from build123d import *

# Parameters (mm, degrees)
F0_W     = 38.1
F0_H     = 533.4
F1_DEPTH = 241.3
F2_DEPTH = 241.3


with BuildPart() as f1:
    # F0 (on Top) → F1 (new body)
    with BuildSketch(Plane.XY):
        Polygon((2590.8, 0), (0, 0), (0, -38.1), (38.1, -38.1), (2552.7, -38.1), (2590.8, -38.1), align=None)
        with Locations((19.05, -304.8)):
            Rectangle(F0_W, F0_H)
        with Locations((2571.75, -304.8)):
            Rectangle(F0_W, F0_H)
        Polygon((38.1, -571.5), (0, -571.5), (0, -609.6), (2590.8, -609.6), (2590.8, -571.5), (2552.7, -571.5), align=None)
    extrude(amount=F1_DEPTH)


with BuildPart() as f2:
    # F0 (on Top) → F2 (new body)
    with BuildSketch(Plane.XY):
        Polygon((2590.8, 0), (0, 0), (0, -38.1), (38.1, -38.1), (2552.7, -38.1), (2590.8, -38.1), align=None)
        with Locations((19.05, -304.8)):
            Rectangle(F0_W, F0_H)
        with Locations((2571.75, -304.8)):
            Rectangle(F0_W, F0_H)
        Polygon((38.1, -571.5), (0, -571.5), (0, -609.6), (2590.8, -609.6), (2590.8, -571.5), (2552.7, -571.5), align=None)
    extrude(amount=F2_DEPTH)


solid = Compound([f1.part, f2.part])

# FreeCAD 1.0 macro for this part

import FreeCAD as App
import Part
import Sketcher

V = App.Vector
Q = App.Units.Quantity


def add_polygon(sketch, points):
    """Adds a closed chain of lines whose ends are joined by coincident constraints."""
    first, n = sketch.GeometryCount, len(points)
    for a, b in zip(points, points[1:] + points[:1]):
        sketch.addGeometry(Part.LineSegment(App.Vector(*a, 0), App.Vector(*b, 0)), False)
    for i in range(n):
        sketch.addConstraint(Sketcher.Constraint("Coincident", first + i, 2, first + (i + 1) % n, 1))

doc = App.newDocument("Part")
body = doc.addObject("PartDesign::Body", "Body")

# Sketch on XY plane
sketch1 = doc.addObject("Sketcher::SketchObject", "Sketch")
body.addObject(sketch1)
sketch1.AttachmentSupport = (doc.XY_Plane, [""])
sketch1.MapMode = "FlatFace"
add_polygon(sketch1, [(2590.8, 0), (0, 0), (0, -609.6), (2590.8, -609.6)])  # lines 0-3
add_polygon(sketch1, [(38.1, -571.5), (38.1, -38.1), (2552.7, -38.1), (2552.7, -571.5)])  # lines 4-7
sketch1.addConstraint([
    Sketcher.Constraint("Horizontal", 0),
    Sketcher.Constraint("Vertical", 1),
    Sketcher.Constraint("Horizontal", 2),
    Sketcher.Constraint("Vertical", 3),
    Sketcher.Constraint("Vertical", 4),
    Sketcher.Constraint("Horizontal", 5),
    Sketcher.Constraint("Vertical", 6),
    Sketcher.Constraint("Horizontal", 7),
    Sketcher.Constraint("Coincident", 0, 2, -1, 1),
    Sketcher.Constraint("DistanceX", 0, 2, 0, 1, Q("102 in")),
    Sketcher.Constraint("DistanceX", 5, 1, 5, 2, Q("99 in")),
    Sketcher.Constraint("DistanceY", 1, 2, 1, 1, Q("24 in")),
    Sketcher.Constraint("DistanceY", 4, 1, 4, 2, Q("21 in")),
    Sketcher.Constraint("DistanceX", -1, 1, 4, 2, Q("1.5 in")),
    Sketcher.Constraint("DistanceY", 4, 2, -1, 1, Q("1.5 in")),
])
pad1 = doc.addObject("PartDesign::Pad", "Pad")
body.addObject(pad1)
pad1.Profile = sketch1
pad1.Length = Q("9.5 in")
body2 = doc.addObject("PartDesign::Body", "Body001")

# Sketch on XY plane
sketch2 = doc.addObject("Sketcher::SketchObject", "Sketch001")
body2.addObject(sketch2)
sketch2.AttachmentSupport = (doc.getObject("XY_Plane001"), [""])
sketch2.MapMode = "FlatFace"
add_polygon(sketch2, [(2590.8, 0), (0, 0), (0, -609.6), (2590.8, -609.6)])  # lines 0-3
add_polygon(sketch2, [(38.1, -571.5), (38.1, -38.1), (2552.7, -38.1), (2552.7, -571.5)])  # lines 4-7
sketch2.addConstraint([
    Sketcher.Constraint("Horizontal", 0),
    Sketcher.Constraint("Vertical", 1),
    Sketcher.Constraint("Horizontal", 2),
    Sketcher.Constraint("Vertical", 3),
    Sketcher.Constraint("Vertical", 4),
    Sketcher.Constraint("Horizontal", 5),
    Sketcher.Constraint("Vertical", 6),
    Sketcher.Constraint("Horizontal", 7),
    Sketcher.Constraint("Coincident", 0, 2, -1, 1),
    Sketcher.Constraint("DistanceX", 0, 2, 0, 1, Q("102 in")),
    Sketcher.Constraint("DistanceX", 5, 1, 5, 2, Q("99 in")),
    Sketcher.Constraint("DistanceY", 1, 2, 1, 1, Q("24 in")),
    Sketcher.Constraint("DistanceY", 4, 1, 4, 2, Q("21 in")),
    Sketcher.Constraint("DistanceX", -1, 1, 4, 2, Q("1.5 in")),
    Sketcher.Constraint("DistanceY", 4, 2, -1, 1, Q("1.5 in")),
])
pad2 = doc.addObject("PartDesign::Pad", "Pad001")
body2.addObject(pad2)
pad2.Profile = sketch2
pad2.Length = Q("9.5 in")

doc.recompute()
